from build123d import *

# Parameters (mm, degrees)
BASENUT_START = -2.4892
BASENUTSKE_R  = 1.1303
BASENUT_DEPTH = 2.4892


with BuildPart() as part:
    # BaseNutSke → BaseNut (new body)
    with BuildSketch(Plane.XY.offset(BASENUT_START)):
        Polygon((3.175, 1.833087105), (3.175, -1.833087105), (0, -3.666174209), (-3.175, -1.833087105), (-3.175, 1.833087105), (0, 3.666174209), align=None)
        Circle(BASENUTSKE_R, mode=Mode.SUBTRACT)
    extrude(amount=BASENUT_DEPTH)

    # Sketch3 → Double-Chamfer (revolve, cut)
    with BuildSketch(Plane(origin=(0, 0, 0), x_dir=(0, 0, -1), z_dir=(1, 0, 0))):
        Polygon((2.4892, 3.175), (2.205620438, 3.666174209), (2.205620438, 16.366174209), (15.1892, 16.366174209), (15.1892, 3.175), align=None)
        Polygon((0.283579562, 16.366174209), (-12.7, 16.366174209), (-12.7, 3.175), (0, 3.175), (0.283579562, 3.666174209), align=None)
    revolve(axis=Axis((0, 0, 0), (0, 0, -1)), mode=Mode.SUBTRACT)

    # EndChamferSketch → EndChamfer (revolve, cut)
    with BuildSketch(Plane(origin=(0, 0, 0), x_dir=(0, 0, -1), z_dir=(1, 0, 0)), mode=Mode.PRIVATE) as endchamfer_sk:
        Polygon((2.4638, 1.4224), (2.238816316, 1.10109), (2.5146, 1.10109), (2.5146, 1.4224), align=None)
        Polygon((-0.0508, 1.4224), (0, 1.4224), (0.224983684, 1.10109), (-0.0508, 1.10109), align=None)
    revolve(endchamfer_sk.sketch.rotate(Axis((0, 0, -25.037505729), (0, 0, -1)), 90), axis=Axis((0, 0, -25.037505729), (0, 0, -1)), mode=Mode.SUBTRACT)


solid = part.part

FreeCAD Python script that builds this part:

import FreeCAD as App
import Part
import Sketcher

V = App.Vector
Q = App.Units.Quantity


def add_polygon(sketch, points):
    """Adds a closed chain of lines whose ends are joined by coincident constraints."""
    first, n = sketch.GeometryCount, len(points)
    for a, b in zip(points, points[1:] + points[:1]):
        sketch.addGeometry(Part.LineSegment(App.Vector(*a, 0), App.Vector(*b, 0)), False)
    for i in range(n):
        sketch.addConstraint(Sketcher.Constraint("Coincident", first + i, 2, first + (i + 1) % n, 1))

doc = App.newDocument("Part")
body = doc.addObject("PartDesign::Body", "Body")

# Sketch on XY plane
sketch1 = body.newObject("Sketcher::SketchObject", "Sketch")
sketch1.AttachmentSupport = (doc.getObject("XY_Plane"), [""])
sketch1.MapMode = "FlatFace"
sketch1.AttachmentOffset = App.Placement(V(0, 0, -0.098 * 25.4), App.Rotation())
add_polygon(sketch1, [(3.2, -1.8), (3.2, 1.8), (0, 3.7), (-3.2, 1.8), (-3.2, -1.8), (0, -3.7)])  # lines 0-5
sketch1.addGeometry(Part.Circle(V(0, 0, 0), V(0, 0, 1), 1.1), False)  # 6
sketch1.addConstraint(Sketcher.Constraint("Vertical", 0))
sketch1.addConstraint(Sketcher.Constraint("Vertical", 3))
sketch1.addConstraint(Sketcher.Constraint("Coincident", 6, 3, -1, 1))
sketch1.addConstraint(Sketcher.Constraint("Symmetric", 0, 2, 3, 2, -1, 1))
sketch1.addConstraint(Sketcher.Constraint("Symmetric", 1, 2, 4, 2, -1, 1))
sketch1.addConstraint(Sketcher.Constraint("PointOnObject", 1, 2, -2))
sketch1.addConstraint(Sketcher.Constraint("Parallel", 2, 5))
sketch1.addConstraint(Sketcher.Constraint("Horizontal", 0, 2, 2, 2))
sketch1.addConstraint(Sketcher.Constraint("Diameter", 6, Q("0.089 in")))
sketch1.addConstraint(Sketcher.Constraint("Angle", 1, Q("150 deg")))
sketch1.addConstraint(Sketcher.Constraint("DistanceX", 2, 2, 0, 2, Q("0.25 in")))
sketch1.addConstraint(Sketcher.Constraint("DistanceY", 0, 1, 0, 2, 3.666174))
pad1 = body.newObject("PartDesign::Pad", "Pad")
pad1.Profile = sketch1
pad1.Length = Q("0.098 in")

# Sketch on YZ plane
sketch2 = body.newObject("Sketcher::SketchObject", "Sketch001")
sketch2.AttachmentSupport = (doc.getObject("YZ_Plane"), [""])
sketch2.MapMode = "FlatFace"
add_polygon(sketch2, [(3.7, -2.2), (3.2, -2.5), (3.2, -15.2), (16.4, -15.2), (16.4, -2.2)])  # lines 0-4
add_polygon(sketch2, [(16.4, -0.3), (16.4, 12.7), (3.2, 12.7), (3.2, 0), (3.7, -0.3)])  # lines 5-9
sketch2.addConstraint(Sketcher.Constraint("Vertical", 1))
sketch2.addConstraint(Sketcher.Constraint("Horizontal", 2))
sketch2.addConstraint(Sketcher.Constraint("Vertical", 3))
sketch2.addConstraint(Sketcher.Constraint("Horizontal", 4))
sketch2.addConstraint(Sketcher.Constraint("Vertical", 5))
sketch2.addConstraint(Sketcher.Constraint("Horizontal", 6))
sketch2.addConstraint(Sketcher.Constraint("Vertical", 7))
sketch2.addConstraint(Sketcher.Constraint("Horizontal", 9))
sketch2.addConstraint(Sketcher.Constraint("PointOnObject", 7, 2, -1))
sketch2.addConstraint(Sketcher.Constraint("Vertical", 3, 2, 5, 2))
sketch2.addConstraint(Sketcher.Constraint("Vertical", 1, 2, 6, 2))
sketch2.addConstraint(Sketcher.Constraint("Vertical", 4, 2, 8, 2))
sketch2.addConstraint(Sketcher.Constraint("Equal", 9, 1))
sketch2.addConstraint(Sketcher.Constraint("Equal", 3, 5))
sketch2.addConstraint(Sketcher.Constraint("Equal", 1, 7))
sketch2.addConstraint(Sketcher.Constraint("DistanceX", 4, 2, 4, 1, Q("0.5 in")))
sketch2.addConstraint(Sketcher.Constraint("Angle", 0, Q("-150 deg")))
sketch2.addConstraint(Sketcher.Constraint("DistanceX", -1, 1, 0, 2, Q("0.125 in")))
sketch2.addConstraint(Sketcher.Constraint("DistanceY", 0, 2, -1, 1, Q("0.098 in")))
sketch2.addConstraint(Sketcher.Constraint("DistanceY", 3, 1, 3, 2, 12.98358))
groove = body.newObject("PartDesign::Groove", "Groove")
groove.Profile = sketch2
groove.ReferenceAxis = (sketch2, ["V_Axis"])
groove.Angle = 360

# Sketch on YZ plane
sketch3 = body.newObject("Sketcher::SketchObject", "Sketch002")
sketch3.AttachmentSupport = (doc.getObject("YZ_Plane"), [""])
sketch3.MapMode = "FlatFace"
add_polygon(sketch3, [(1.42, -2.46), (1.1, -2.24), (1.1, -2.51), (1.42, -2.51)])  # lines 0-3
add_polygon(sketch3, [(1.42, 0), (1.42, 0.05), (1.1, 0.05), (1.1, -0.22)])  # lines 4-7
sketch3.addConstraint(Sketcher.Constraint("Vertical", 1))
sketch3.addConstraint(Sketcher.Constraint("Horizontal", 2))
sketch3.addConstraint(Sketcher.Constraint("Vertical", 3))
sketch3.addConstraint(Sketcher.Constraint("Vertical", 4))
sketch3.addConstraint(Sketcher.Constraint("Horizontal", 5))
sketch3.addConstraint(Sketcher.Constraint("Vertical", 6))
sketch3.addConstraint(Sketcher.Constraint("PointOnObject", 7, 2, -1))
sketch3.addConstraint(Sketcher.Constraint("Vertical", 3, 2, 4, 2))
sketch3.addConstraint(Sketcher.Constraint("Vertical", 1, 2, 5, 2))
sketch3.addConstraint(Sketcher.Constraint("Equal", 3, 4))
sketch3.addConstraint(Sketcher.Constraint("Equal", 1, 6))
sketch3.addConstraint(Sketcher.Constraint("Angle", 0, Q("145 deg")))
sketch3.addConstraint(Sketcher.Constraint("DistanceY", 3, 1, 3, 2, Q("0.002 in")))
sketch3.addConstraint(Sketcher.Constraint("DistanceY", 1, 2, -1, 1, Q("0.099 in")))
sketch3.addConstraint(Sketcher.Constraint("DistanceX", -1, 1, 2, 2, Q("0.056 in")))
sketch3.addConstraint(Sketcher.Constraint("DistanceX", 2, 1, 2, 2, 0.32131))
groove2 = body.newObject("PartDesign::Groove", "Groove001")
groove2.Profile = sketch3
groove2.ReferenceAxis = (sketch3, ["V_Axis"])
groove2.Angle = 360

doc.recompute()
